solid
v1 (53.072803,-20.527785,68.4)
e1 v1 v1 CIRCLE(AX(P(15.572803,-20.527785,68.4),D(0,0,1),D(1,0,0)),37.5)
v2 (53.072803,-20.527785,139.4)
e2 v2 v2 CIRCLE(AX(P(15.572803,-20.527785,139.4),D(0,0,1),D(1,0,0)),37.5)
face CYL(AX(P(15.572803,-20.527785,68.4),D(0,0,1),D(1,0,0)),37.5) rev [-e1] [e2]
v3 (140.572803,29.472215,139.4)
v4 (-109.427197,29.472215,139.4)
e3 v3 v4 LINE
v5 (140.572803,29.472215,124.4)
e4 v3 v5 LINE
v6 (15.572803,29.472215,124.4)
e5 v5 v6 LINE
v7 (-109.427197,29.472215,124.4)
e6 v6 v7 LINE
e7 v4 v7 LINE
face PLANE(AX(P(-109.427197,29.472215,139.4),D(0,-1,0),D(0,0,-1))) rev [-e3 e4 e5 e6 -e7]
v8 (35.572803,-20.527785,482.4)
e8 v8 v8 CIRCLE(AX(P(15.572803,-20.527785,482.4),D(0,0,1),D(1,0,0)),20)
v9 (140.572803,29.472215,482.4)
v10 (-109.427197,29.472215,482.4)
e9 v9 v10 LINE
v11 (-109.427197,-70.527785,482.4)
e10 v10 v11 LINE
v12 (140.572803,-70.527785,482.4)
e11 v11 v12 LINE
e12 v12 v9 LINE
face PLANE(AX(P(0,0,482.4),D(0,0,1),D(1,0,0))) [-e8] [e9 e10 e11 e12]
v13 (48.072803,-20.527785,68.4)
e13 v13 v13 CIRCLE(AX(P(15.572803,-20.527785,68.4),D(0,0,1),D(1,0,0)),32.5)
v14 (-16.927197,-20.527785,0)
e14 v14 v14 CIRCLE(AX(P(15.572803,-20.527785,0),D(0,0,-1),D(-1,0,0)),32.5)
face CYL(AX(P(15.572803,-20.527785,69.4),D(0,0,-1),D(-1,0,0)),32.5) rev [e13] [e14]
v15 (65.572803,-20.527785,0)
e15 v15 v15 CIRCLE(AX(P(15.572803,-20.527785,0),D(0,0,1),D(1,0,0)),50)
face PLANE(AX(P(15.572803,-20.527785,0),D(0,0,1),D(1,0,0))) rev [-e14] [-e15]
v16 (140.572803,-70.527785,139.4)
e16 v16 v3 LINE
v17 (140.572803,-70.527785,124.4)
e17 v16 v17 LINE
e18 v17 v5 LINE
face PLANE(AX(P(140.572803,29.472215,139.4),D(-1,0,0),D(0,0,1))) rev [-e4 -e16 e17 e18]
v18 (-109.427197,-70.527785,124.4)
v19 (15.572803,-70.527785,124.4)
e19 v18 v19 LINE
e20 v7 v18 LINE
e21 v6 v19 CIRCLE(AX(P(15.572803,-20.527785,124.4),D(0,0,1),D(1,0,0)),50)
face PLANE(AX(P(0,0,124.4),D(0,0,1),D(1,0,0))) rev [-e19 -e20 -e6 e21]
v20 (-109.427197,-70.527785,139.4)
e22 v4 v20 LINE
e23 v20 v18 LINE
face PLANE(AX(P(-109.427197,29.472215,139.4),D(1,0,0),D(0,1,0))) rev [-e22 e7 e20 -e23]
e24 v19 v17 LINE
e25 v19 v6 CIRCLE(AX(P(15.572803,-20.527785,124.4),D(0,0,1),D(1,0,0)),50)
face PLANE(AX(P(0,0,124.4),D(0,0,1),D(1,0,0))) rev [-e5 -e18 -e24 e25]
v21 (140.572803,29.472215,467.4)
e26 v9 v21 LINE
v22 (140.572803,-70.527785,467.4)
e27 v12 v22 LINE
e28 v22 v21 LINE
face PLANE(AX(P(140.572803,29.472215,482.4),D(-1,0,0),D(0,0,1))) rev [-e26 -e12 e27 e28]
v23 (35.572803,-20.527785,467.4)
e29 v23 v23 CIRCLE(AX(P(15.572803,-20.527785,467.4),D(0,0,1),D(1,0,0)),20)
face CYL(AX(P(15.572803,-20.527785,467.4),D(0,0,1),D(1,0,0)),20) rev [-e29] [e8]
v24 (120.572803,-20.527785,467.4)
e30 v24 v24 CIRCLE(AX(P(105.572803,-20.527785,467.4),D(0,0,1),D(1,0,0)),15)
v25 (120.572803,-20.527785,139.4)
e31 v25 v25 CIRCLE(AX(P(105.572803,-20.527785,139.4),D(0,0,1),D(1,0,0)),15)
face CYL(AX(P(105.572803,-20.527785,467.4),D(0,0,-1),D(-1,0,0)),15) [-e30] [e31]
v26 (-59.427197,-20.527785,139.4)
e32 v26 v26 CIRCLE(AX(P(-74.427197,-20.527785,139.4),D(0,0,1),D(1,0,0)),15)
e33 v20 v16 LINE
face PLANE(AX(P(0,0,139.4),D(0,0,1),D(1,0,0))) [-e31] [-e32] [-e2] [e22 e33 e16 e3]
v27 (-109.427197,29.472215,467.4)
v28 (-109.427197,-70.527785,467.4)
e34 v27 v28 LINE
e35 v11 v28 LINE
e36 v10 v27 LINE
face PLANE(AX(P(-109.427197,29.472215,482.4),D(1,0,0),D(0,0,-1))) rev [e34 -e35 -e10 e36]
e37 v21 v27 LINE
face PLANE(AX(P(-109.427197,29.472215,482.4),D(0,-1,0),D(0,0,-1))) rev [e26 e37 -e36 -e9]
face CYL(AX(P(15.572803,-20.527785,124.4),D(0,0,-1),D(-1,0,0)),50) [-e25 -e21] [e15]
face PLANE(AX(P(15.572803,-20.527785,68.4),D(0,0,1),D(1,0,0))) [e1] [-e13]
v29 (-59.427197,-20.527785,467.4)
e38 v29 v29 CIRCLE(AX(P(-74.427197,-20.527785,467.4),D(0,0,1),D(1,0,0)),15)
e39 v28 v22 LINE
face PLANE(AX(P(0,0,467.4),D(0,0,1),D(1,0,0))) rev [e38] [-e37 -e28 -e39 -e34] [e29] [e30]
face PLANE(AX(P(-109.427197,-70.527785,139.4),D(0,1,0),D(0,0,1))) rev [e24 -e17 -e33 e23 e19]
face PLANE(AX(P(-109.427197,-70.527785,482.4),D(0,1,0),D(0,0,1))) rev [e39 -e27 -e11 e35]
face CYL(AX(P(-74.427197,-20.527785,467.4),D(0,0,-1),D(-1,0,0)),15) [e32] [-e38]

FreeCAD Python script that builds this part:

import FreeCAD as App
import Part
import Sketcher
from FreeCAD import Vector

doc = App.newDocument("Part")
params = doc.addObject("Spreadsheet::Sheet", "Params")
for row, (alias, value) in enumerate([
    ("sketch1_diameter", "100 mm"),
    ("pad1_length", "124.4 mm"),
    ("sketch2_diameter", "75 mm"),
    ("pocket1_length", "56 mm"),
    ("sketch3_diameter", "65 mm"),
    ("pocket2_length", "69.4 mm"),
    ("sketch4_width", "250 mm"),
    ("sketch4_height", "100 mm"),
    ("pad2_length", "15 mm"),
    ("sketch5_diameter", "75 mm"),
    ("pocket3_length", "15 mm"),
    ("sketch6_diameter", "30 mm"),
    ("pad3_length", "328 mm"),
    ("linearpattern_pitch", "180 mm"),
    ("sketch7_width", "250 mm"),
    ("sketch7_height", "100 mm"),
    ("pad4_length", "15 mm"),
    ("sketch8_diameter", "40 mm"),
    ("pocket4_length", "15 mm"),
], start=1):
    params.set(f"A{row}", alias)
    params.set(f"B{row}", "=" + value)
    params.setAlias(f"B{row}", alias)

body = doc.addObject("PartDesign::Body", "Body")

# Sketch on XY plane
sketch1 = body.newObject("Sketcher::SketchObject", "Sketch")
sketch1.AttachmentSupport = (doc.getObject("XY_Plane"), [""])
sketch1.MapMode = "FlatFace"
sketch1.addGeometry(Part.Circle(Vector(16, -21, 0), Vector(0, 0, 1), 50), False)
sketch1.addConstraint(Sketcher.Constraint("Diameter", 0, 100.0))
sketch1.addConstraint(Sketcher.Constraint("DistanceX", -1, 1, 0, 3, 15.572803))
sketch1.addConstraint(Sketcher.Constraint("DistanceY", 0, 3, -1, 1, 20.527785))
sketch1.setExpression("Constraints[0]", "Params.sketch1_diameter")
pad1 = body.newObject("PartDesign::Pad", "Pad")
pad1.Profile = sketch1
pad1.setExpression("Length", "Params.pad1_length")

# Sketch on XY plane
sketch2 = body.newObject("Sketcher::SketchObject", "Sketch001")
sketch2.AttachmentSupport = (doc.getObject("XY_Plane"), [""])
sketch2.MapMode = "FlatFace"
sketch2.AttachmentOffset = App.Placement(Vector(0, 0, 124.4), App.Rotation())
sketch2.addGeometry(Part.Circle(Vector(16, -21, 0), Vector(0, 0, 1), 38), False)
sketch2.addConstraint(Sketcher.Constraint("Diameter", 0, 75.0))
sketch2.addConstraint(Sketcher.Constraint("DistanceX", -1, 1, 0, 3, 15.572803))
sketch2.addConstraint(Sketcher.Constraint("DistanceY", 0, 3, -1, 1, 20.527785))
sketch2.setExpression("Constraints[0]", "Params.sketch2_diameter")
pocket1 = body.newObject("PartDesign::Pocket", "Pocket")
pocket1.Profile = sketch2
pocket1.setExpression("Length", "Params.pocket1_length")

# Sketch on XY plane
sketch3 = body.newObject("Sketcher::SketchObject", "Sketch002")
sketch3.AttachmentSupport = (doc.getObject("XY_Plane"), [""])
sketch3.MapMode = "FlatFace"
sketch3.addGeometry(Part.Circle(Vector(16, -21, 0), Vector(0, 0, 1), 32), False)
sketch3.addConstraint(Sketcher.Constraint("Diameter", 0, 65.0))
sketch3.addConstraint(Sketcher.Constraint("DistanceX", -1, 1, 0, 3, 15.572803))
sketch3.addConstraint(Sketcher.Constraint("DistanceY", 0, 3, -1, 1, 20.527785))
sketch3.setExpression("Constraints[0]", "Params.sketch3_diameter")
pocket2 = body.newObject("PartDesign::Pocket", "Pocket001")
pocket2.Profile = sketch3
pocket2.setExpression("Length", "Params.pocket2_length")
pocket2.Reversed = True

# Sketch on XY plane
sketch4 = body.newObject("Sketcher::SketchObject", "Sketch003")
sketch4.AttachmentSupport = (doc.getObject("XY_Plane"), [""])
sketch4.MapMode = "FlatFace"
sketch4.AttachmentOffset = App.Placement(Vector(0, 0, 124.4), App.Rotation())
sketch4.addGeometry(Part.LineSegment(Vector(-109, 29, 0), Vector(-109, -71, 0)), False)
sketch4.addGeometry(Part.LineSegment(Vector(-109, -71, 0), Vector(141, -71, 0)), False)
sketch4.addGeometry(Part.LineSegment(Vector(141, -71, 0), Vector(141, 29, 0)), False)
sketch4.addGeometry(Part.LineSegment(Vector(141, 29, 0), Vector(-109, 29, 0)), False)
sketch4.addConstraint(Sketcher.Constraint("Coincident", 0, 2, 1, 1))
sketch4.addConstraint(Sketcher.Constraint("Coincident", 1, 2, 2, 1))
sketch4.addConstraint(Sketcher.Constraint("Coincident", 2, 2, 3, 1))
sketch4.addConstraint(Sketcher.Constraint("Coincident", 3, 2, 0, 1))
sketch4.addConstraint(Sketcher.Constraint("Vertical", 0))
sketch4.addConstraint(Sketcher.Constraint("Horizontal", 1))
sketch4.addConstraint(Sketcher.Constraint("Vertical", 2))
sketch4.addConstraint(Sketcher.Constraint("Horizontal", 3))
sketch4.addConstraint(Sketcher.Constraint("DistanceX", 1, 1, 1, 2, 250.0))
sketch4.addConstraint(Sketcher.Constraint("DistanceY", 0, 2, 0, 1, 100.0))
sketch4.addConstraint(Sketcher.Constraint("DistanceX", 0, 2, -1, 1, 109.427197))
sketch4.addConstraint(Sketcher.Constraint("DistanceY", 0, 2, -1, 1, 70.527785))
sketch4.setExpression("Constraints[8]", "Params.sketch4_width")
sketch4.setExpression("Constraints[9]", "Params.sketch4_height")
pad2 = body.newObject("PartDesign::Pad", "Pad001")
pad2.Profile = sketch4
pad2.setExpression("Length", "Params.pad2_length")

# Sketch on XY plane
sketch5 = body.newObject("Sketcher::SketchObject", "Sketch004")
sketch5.AttachmentSupport = (doc.getObject("XY_Plane"), [""])
sketch5.MapMode = "FlatFace"
sketch5.AttachmentOffset = App.Placement(Vector(0, 0, 139.4), App.Rotation())
sketch5.addGeometry(Part.Circle(Vector(16, -21, 0), Vector(0, 0, 1), 38), False)
sketch5.addConstraint(Sketcher.Constraint("Diameter", 0, 75.0))
sketch5.addConstraint(Sketcher.Constraint("DistanceX", -1, 1, 0, 3, 15.572803))
sketch5.addConstraint(Sketcher.Constraint("DistanceY", 0, 3, -1, 1, 20.527785))
sketch5.setExpression("Constraints[0]", "Params.sketch5_diameter")
pocket3 = body.newObject("PartDesign::Pocket", "Pocket002")
pocket3.Profile = sketch5
pocket3.setExpression("Length", "Params.pocket3_length")

# Sketch on XY plane
sketch6 = body.newObject("Sketcher::SketchObject", "Sketch005")
sketch6.AttachmentSupport = (doc.getObject("XY_Plane"), [""])
sketch6.MapMode = "FlatFace"
sketch6.AttachmentOffset = App.Placement(Vector(0, 0, 139.4), App.Rotation())
sketch6.addGeometry(Part.Circle(Vector(106, -21, 0), Vector(0, 0, 1), 15), False)
sketch6.addConstraint(Sketcher.Constraint("Diameter", 0, 30.0))
sketch6.addConstraint(Sketcher.Constraint("DistanceX", -1, 1, 0, 3, 105.572803))
sketch6.addConstraint(Sketcher.Constraint("DistanceY", 0, 3, -1, 1, 20.527785))
sketch6.setExpression("Constraints[0]", "Params.sketch6_diameter")
pad3 = body.newObject("PartDesign::Pad", "Pad002")
pad3.Profile = sketch6
pad3.setExpression("Length", "Params.pad3_length")
doc.recompute()

linearpattern = body.newObject("PartDesign::LinearPattern", "LinearPattern")
linearpattern.Originals = [pad3]
linearpattern.Direction = (doc.getObject("X_Axis"), [""])
linearpattern.Mode = "offset"
linearpattern.setExpression("Offset", "Params.linearpattern_pitch")
linearpattern.Occurrences = 2
linearpattern.Reversed = True
body.Tip = linearpattern

# Sketch on XY plane
sketch7 = body.newObject("Sketcher::SketchObject", "Sketch006")
sketch7.AttachmentSupport = (doc.getObject("XY_Plane"), [""])
sketch7.MapMode = "FlatFace"
sketch7.AttachmentOffset = App.Placement(Vector(0, 0, 467.4), App.Rotation())
sketch7.addGeometry(Part.LineSegment(Vector(-109, 29, 0), Vector(-109, -71, 0)), False)
sketch7.addGeometry(Part.LineSegment(Vector(-109, -71, 0), Vector(141, -71, 0)), False)
sketch7.addGeometry(Part.LineSegment(Vector(141, -71, 0), Vector(141, 29, 0)), False)
sketch7.addGeometry(Part.LineSegment(Vector(141, 29, 0), Vector(-109, 29, 0)), False)
sketch7.addConstraint(Sketcher.Constraint("Coincident", 0, 2, 1, 1))
sketch7.addConstraint(Sketcher.Constraint("Coincident", 1, 2, 2, 1))
sketch7.addConstraint(Sketcher.Constraint("Coincident", 2, 2, 3, 1))
sketch7.addConstraint(Sketcher.Constraint("Coincident", 3, 2, 0, 1))
sketch7.addConstraint(Sketcher.Constraint("Vertical", 0))
sketch7.addConstraint(Sketcher.Constraint("Horizontal", 1))
sketch7.addConstraint(Sketcher.Constraint("Vertical", 2))
sketch7.addConstraint(Sketcher.Constraint("Horizontal", 3))
sketch7.addConstraint(Sketcher.Constraint("DistanceX", 1, 1, 1, 2, 250.0))
sketch7.addConstraint(Sketcher.Constraint("DistanceY", 0, 2, 0, 1, 100.0))
sketch7.addConstraint(Sketcher.Constraint("DistanceX", 0, 2, -1, 1, 109.427197))
sketch7.addConstraint(Sketcher.Constraint("DistanceY", 0, 2, -1, 1, 70.527785))
sketch7.setExpression("Constraints[8]", "Params.sketch7_width")
sketch7.setExpression("Constraints[9]", "Params.sketch7_height")
pad4 = body.newObject("PartDesign::Pad", "Pad003")
pad4.Profile = sketch7
pad4.setExpression("Length", "Params.pad4_length")

# Sketch on XY plane
sketch8 = body.newObject("Sketcher::SketchObject", "Sketch007")
sketch8.AttachmentSupport = (doc.getObject("XY_Plane"), [""])
sketch8.MapMode = "FlatFace"
sketch8.AttachmentOffset = App.Placement(Vector(0, 0, 482.4), App.Rotation())
sketch8.addGeometry(Part.Circle(Vector(16, -21, 0), Vector(0, 0, 1), 20), False)
sketch8.addConstraint(Sketcher.Constraint("Diameter", 0, 40.0))
sketch8.addConstraint(Sketcher.Constraint("DistanceX", -1, 1, 0, 3, 15.572803))
sketch8.addConstraint(Sketcher.Constraint("DistanceY", 0, 3, -1, 1, 20.527785))
sketch8.setExpression("Constraints[0]", "Params.sketch8_diameter")
pocket4 = body.newObject("PartDesign::Pocket", "Pocket003")
pocket4.Profile = sketch8
pocket4.setExpression("Length", "Params.pocket4_length")

doc.recompute()
